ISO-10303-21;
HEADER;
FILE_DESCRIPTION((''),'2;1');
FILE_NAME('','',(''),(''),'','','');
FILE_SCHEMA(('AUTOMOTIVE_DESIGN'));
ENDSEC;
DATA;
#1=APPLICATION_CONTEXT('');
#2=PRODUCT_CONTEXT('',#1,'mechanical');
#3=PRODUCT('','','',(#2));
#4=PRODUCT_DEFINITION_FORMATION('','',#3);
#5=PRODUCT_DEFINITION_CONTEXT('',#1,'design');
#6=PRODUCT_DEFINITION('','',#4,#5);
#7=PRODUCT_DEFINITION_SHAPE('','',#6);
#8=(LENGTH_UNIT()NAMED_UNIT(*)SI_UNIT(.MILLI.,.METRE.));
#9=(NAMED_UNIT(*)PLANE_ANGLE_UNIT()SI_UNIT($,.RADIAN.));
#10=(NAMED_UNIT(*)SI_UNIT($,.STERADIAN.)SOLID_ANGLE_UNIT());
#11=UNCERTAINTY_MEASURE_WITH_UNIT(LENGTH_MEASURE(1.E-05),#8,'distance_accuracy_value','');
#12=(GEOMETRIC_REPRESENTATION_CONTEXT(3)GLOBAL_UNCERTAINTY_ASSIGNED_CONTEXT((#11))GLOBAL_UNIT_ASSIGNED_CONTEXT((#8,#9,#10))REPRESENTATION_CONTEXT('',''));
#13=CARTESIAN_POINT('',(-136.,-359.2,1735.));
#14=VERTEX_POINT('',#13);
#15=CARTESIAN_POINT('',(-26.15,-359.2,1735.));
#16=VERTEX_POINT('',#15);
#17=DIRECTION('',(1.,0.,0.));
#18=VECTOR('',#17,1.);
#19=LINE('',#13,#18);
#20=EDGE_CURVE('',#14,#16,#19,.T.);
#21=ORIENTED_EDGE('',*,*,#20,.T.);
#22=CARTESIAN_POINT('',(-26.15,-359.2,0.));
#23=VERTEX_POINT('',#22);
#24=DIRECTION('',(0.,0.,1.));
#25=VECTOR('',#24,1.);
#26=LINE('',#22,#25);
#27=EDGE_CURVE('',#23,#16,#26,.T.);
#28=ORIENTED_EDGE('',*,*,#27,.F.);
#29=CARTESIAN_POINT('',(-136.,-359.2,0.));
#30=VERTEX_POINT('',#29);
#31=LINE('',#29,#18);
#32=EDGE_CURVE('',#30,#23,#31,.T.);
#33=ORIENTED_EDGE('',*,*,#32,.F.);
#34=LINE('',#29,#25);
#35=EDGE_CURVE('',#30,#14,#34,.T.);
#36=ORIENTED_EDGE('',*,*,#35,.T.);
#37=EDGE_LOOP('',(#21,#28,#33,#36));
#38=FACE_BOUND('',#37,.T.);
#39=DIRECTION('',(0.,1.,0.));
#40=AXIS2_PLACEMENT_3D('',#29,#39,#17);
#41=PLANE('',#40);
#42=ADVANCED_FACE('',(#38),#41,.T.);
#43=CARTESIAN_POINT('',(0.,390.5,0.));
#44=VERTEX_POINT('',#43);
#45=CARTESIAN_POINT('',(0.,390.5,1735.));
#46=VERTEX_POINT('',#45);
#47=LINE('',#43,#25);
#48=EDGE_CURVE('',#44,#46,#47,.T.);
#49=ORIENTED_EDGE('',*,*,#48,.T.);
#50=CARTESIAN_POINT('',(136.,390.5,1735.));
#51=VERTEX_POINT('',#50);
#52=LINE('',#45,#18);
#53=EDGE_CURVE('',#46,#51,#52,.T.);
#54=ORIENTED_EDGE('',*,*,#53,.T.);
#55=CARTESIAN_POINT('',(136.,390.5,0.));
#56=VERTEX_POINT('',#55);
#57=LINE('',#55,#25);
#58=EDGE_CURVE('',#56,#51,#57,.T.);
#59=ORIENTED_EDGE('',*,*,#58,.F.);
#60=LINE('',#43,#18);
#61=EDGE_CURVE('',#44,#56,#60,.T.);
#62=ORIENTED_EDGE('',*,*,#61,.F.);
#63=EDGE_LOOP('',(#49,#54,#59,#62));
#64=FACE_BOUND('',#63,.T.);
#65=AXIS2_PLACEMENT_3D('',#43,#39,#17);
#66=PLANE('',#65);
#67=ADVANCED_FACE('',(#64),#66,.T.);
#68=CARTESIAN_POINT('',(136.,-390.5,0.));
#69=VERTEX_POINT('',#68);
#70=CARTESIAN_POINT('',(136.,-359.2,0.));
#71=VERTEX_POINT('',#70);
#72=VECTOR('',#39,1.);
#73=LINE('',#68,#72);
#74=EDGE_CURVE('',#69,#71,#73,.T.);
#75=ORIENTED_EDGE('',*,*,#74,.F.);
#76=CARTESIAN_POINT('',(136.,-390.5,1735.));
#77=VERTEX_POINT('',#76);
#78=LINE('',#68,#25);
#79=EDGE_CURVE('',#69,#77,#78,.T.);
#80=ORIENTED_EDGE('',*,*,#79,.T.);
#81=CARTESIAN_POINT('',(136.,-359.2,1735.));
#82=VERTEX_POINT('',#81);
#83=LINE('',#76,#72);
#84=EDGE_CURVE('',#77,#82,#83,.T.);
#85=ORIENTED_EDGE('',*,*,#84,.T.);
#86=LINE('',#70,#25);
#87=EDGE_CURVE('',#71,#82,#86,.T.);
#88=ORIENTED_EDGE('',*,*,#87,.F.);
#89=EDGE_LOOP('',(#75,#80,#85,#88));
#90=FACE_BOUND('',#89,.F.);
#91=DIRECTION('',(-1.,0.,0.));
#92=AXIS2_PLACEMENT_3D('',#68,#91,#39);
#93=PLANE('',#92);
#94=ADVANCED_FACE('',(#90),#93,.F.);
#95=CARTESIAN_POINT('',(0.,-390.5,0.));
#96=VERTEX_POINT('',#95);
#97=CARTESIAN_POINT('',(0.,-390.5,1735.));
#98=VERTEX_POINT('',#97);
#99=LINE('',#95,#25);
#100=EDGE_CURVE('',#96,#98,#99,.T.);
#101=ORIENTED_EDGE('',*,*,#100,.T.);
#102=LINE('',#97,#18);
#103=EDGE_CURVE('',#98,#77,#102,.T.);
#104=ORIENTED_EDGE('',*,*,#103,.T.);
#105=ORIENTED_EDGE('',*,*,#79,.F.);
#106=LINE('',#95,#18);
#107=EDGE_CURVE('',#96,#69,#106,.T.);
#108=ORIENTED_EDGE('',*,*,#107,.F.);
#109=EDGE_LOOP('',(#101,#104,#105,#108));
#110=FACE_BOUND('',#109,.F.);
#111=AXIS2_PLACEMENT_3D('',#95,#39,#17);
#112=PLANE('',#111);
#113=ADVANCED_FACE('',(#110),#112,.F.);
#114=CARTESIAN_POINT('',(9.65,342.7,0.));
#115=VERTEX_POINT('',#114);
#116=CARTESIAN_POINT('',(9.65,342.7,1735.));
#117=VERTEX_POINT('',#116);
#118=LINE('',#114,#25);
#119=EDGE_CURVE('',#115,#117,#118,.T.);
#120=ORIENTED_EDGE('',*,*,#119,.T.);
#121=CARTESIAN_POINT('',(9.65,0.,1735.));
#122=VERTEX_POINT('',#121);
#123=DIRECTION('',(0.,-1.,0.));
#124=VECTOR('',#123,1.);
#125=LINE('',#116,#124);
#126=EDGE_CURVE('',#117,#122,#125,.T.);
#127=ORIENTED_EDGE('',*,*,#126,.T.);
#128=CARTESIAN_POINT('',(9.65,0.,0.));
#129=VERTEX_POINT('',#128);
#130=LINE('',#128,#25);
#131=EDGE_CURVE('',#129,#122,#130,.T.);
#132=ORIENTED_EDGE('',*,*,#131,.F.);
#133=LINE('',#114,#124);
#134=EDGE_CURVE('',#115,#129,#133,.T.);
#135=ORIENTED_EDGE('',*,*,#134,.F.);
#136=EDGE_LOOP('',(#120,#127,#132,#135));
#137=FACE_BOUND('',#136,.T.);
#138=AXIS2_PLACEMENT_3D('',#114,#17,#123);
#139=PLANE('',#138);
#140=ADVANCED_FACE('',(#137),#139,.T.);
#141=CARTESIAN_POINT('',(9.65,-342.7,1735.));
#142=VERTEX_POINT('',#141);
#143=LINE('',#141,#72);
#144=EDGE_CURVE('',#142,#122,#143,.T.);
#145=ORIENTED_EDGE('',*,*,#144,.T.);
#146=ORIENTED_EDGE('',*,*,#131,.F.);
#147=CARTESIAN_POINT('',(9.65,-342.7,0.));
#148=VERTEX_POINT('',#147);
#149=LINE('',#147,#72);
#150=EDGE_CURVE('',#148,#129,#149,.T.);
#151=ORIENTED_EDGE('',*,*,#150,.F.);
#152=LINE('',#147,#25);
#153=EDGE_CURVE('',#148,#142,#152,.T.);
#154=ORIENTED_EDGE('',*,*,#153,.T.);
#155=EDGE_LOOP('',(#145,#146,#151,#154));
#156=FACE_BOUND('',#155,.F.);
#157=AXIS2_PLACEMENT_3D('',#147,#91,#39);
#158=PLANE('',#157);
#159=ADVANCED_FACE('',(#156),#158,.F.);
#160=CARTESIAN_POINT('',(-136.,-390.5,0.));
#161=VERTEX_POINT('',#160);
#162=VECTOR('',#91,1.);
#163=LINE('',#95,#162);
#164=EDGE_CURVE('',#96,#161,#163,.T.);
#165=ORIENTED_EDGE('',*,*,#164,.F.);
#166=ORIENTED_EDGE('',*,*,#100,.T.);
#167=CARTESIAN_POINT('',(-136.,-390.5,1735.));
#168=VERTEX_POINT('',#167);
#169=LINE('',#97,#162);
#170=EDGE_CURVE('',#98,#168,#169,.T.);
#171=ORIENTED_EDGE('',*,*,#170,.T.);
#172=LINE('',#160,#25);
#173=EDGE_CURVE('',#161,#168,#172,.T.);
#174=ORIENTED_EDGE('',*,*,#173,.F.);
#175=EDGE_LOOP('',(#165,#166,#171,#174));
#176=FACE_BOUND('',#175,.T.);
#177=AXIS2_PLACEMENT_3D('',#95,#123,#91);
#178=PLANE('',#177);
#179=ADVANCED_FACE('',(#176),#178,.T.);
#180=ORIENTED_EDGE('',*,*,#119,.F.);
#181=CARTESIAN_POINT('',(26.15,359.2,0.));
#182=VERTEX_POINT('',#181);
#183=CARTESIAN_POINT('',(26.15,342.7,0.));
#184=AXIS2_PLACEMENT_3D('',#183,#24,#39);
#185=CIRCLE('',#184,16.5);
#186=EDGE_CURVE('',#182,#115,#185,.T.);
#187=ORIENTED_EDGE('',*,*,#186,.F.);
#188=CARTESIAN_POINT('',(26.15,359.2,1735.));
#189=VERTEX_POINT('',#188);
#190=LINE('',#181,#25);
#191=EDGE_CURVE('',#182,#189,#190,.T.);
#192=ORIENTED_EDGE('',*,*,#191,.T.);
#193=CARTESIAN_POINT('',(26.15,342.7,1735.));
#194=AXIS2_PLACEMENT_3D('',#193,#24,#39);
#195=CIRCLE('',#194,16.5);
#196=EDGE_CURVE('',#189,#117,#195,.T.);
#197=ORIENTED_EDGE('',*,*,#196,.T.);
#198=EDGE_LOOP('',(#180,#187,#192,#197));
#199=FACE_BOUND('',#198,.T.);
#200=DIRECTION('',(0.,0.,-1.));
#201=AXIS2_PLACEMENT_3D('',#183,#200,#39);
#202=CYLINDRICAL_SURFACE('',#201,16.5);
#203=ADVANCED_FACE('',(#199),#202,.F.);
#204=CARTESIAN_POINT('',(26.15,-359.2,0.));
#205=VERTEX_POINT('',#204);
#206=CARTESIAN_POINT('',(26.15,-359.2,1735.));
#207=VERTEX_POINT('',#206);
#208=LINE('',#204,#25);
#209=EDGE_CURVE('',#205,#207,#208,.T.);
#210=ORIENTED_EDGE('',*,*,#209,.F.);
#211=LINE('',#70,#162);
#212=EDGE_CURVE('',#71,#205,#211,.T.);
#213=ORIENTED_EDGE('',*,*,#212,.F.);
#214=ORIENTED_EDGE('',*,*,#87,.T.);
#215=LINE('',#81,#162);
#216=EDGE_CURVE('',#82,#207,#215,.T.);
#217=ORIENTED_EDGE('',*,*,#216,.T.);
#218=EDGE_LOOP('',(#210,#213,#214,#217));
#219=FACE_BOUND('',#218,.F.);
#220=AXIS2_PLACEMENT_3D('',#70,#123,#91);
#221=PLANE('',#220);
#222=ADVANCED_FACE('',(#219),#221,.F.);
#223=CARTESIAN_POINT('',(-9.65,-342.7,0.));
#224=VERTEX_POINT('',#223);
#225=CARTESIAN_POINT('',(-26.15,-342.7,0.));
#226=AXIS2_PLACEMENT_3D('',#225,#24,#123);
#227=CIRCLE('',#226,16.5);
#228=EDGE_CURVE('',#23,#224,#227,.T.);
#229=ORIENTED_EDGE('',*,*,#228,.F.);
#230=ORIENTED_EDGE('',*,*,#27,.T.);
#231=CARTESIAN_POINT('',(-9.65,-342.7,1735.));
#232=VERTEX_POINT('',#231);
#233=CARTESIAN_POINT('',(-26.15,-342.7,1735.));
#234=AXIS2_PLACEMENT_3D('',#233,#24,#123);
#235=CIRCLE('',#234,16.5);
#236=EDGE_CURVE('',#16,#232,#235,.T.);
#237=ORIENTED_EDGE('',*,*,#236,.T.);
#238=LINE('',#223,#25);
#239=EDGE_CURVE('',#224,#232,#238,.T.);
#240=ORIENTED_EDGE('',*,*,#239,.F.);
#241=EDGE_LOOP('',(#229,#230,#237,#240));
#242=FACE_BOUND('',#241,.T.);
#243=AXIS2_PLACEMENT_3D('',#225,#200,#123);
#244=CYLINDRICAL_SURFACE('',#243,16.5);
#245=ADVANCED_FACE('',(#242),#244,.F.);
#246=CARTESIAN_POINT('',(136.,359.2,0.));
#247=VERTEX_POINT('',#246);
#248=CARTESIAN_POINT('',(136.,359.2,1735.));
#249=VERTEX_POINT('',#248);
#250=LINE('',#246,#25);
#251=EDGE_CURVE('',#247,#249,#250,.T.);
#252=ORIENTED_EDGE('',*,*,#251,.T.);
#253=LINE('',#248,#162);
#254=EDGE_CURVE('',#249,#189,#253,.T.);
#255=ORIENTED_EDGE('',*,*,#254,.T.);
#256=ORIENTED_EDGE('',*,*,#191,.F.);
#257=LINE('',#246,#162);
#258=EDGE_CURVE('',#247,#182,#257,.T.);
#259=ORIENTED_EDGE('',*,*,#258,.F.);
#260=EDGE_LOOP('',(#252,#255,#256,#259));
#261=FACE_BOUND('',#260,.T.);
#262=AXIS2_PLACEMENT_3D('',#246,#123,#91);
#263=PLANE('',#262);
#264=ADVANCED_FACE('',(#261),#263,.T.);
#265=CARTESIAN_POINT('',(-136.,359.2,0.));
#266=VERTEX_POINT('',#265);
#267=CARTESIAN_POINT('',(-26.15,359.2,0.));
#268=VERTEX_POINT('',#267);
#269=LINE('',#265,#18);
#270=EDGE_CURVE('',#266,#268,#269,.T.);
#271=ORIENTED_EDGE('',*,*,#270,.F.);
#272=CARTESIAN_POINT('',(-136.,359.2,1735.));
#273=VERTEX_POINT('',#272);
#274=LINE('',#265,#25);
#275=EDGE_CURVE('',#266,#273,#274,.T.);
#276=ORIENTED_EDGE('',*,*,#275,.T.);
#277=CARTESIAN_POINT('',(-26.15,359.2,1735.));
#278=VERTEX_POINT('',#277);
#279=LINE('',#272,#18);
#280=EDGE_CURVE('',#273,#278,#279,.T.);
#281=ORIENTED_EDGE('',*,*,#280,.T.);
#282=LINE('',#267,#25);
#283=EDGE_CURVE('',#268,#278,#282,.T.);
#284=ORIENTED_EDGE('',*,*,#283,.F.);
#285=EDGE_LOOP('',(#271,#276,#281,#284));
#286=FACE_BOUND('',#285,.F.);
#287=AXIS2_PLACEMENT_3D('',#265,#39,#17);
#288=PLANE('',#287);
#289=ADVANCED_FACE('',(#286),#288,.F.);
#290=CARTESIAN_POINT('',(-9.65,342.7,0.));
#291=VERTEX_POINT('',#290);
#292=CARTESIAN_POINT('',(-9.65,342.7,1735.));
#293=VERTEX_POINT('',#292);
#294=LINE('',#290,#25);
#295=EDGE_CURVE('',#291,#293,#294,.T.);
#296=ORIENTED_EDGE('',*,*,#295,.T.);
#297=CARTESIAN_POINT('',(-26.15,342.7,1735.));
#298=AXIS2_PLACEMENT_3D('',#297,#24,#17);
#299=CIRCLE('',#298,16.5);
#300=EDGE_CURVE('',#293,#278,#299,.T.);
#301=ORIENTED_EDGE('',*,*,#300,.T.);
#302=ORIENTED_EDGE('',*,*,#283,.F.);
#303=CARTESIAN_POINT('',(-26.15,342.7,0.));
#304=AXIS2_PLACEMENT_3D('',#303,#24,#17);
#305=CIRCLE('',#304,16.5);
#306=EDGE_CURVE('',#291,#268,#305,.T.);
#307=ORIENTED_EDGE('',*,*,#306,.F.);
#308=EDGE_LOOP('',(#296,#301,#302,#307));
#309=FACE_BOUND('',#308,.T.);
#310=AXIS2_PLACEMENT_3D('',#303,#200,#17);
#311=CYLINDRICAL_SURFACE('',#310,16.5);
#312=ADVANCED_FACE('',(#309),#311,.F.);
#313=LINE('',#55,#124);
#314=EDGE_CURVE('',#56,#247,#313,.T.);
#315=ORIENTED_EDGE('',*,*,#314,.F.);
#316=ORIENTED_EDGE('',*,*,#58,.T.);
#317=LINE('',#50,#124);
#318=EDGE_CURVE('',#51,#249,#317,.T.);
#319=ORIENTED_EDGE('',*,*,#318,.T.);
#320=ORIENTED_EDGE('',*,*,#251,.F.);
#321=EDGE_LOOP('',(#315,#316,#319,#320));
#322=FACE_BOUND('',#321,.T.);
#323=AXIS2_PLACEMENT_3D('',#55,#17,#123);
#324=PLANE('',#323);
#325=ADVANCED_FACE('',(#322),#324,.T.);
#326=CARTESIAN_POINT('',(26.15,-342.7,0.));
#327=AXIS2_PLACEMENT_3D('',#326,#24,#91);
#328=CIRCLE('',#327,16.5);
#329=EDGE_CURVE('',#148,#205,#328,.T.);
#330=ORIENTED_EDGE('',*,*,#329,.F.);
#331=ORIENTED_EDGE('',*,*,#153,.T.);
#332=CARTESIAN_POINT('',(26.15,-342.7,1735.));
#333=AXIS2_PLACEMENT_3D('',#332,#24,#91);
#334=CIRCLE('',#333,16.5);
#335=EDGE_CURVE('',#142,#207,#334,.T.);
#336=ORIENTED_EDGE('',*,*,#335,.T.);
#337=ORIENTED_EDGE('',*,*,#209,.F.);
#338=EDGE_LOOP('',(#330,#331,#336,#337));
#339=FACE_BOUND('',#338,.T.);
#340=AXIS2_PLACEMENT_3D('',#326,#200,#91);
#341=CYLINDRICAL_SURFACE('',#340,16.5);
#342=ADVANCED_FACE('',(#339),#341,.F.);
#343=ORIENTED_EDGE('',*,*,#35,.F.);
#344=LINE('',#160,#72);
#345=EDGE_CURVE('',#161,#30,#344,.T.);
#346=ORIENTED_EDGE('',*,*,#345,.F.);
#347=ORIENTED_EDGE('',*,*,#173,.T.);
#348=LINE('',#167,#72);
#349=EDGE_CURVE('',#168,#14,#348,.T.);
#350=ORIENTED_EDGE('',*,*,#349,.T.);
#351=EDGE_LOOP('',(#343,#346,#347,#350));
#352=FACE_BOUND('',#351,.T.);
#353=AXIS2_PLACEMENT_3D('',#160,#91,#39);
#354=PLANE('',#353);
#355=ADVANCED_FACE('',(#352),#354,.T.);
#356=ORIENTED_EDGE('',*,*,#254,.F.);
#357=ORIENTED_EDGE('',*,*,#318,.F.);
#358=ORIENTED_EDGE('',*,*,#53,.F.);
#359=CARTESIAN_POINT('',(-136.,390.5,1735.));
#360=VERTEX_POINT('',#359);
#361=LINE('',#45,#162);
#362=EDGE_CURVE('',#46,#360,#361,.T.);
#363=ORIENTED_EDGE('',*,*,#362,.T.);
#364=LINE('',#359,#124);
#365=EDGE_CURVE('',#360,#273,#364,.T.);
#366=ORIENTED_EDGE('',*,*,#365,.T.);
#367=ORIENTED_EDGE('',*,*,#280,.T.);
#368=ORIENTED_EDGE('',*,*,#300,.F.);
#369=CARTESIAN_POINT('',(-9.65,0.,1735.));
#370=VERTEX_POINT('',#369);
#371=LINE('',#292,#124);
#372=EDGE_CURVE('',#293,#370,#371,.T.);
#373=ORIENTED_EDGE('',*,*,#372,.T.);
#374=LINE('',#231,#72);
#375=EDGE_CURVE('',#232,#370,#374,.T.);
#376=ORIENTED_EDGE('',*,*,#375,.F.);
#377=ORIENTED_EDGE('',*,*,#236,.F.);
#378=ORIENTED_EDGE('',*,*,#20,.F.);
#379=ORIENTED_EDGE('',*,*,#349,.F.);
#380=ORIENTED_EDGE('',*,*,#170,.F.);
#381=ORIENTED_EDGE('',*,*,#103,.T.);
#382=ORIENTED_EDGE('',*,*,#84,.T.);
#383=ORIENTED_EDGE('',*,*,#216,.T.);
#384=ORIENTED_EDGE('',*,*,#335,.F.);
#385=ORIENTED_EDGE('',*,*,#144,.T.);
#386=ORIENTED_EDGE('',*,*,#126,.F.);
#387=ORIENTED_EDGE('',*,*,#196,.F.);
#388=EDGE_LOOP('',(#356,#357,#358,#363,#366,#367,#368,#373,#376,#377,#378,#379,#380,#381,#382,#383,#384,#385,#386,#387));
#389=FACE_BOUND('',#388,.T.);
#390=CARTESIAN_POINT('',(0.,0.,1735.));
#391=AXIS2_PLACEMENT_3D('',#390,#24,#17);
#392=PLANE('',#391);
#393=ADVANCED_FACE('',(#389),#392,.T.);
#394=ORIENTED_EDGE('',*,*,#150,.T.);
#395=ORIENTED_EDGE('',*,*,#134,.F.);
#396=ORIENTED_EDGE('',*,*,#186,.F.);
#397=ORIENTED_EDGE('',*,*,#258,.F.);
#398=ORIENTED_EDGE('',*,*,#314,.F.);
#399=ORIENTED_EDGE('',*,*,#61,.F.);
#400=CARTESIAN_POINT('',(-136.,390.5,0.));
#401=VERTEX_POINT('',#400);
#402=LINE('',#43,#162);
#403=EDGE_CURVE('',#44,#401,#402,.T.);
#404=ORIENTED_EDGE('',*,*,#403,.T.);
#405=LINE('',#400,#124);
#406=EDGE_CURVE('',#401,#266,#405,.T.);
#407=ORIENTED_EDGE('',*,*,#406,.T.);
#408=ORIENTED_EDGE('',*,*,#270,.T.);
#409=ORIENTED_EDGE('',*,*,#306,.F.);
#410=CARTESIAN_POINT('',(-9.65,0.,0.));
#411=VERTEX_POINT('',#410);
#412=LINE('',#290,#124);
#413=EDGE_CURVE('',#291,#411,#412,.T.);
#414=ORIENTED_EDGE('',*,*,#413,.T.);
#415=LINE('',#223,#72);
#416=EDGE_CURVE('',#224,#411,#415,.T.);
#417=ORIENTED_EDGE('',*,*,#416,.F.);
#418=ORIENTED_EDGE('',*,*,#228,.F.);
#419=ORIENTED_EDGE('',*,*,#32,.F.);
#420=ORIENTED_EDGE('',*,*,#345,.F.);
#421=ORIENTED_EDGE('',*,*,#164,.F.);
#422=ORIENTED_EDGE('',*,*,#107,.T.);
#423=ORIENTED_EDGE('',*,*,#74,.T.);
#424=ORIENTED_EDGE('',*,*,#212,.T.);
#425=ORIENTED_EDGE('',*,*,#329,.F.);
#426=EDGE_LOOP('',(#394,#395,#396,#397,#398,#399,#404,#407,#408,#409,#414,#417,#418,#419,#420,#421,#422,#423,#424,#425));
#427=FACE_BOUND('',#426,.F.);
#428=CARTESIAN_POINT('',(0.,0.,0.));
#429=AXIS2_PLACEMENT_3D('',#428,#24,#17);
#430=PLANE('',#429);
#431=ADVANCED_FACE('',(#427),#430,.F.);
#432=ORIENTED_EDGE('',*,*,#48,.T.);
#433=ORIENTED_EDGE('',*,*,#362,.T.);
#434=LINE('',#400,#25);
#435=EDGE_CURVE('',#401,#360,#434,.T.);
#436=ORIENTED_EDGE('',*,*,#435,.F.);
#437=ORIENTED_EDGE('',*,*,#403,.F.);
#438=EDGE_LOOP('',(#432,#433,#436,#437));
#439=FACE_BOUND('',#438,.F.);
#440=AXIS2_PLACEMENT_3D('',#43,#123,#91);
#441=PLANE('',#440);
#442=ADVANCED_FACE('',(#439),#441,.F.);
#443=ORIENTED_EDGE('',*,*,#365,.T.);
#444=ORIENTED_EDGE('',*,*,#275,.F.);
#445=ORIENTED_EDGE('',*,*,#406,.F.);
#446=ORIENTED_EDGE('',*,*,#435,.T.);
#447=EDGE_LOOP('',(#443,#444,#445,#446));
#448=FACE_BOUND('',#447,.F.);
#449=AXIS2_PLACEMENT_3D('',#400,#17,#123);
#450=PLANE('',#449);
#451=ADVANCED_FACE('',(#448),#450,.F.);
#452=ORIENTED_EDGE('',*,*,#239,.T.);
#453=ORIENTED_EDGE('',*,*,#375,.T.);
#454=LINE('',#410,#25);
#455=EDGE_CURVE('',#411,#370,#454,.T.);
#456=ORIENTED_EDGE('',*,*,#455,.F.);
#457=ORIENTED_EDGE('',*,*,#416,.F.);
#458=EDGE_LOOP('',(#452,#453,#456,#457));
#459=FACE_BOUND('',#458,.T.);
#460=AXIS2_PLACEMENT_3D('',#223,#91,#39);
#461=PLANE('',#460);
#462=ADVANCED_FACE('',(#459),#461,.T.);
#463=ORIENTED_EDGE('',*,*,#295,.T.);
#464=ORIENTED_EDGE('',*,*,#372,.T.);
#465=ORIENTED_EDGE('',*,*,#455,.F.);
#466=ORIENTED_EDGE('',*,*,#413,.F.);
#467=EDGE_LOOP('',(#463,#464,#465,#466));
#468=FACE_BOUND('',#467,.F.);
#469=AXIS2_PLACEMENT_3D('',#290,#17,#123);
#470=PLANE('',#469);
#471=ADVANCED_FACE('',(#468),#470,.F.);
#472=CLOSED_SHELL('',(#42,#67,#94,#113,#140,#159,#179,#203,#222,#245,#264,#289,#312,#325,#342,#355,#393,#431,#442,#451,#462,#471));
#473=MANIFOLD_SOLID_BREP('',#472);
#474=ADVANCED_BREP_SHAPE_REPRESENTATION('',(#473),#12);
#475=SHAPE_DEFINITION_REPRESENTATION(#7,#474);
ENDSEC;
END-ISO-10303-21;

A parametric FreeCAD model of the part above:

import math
import FreeCAD as App
import Part
import Sketcher
from FreeCAD import Vector

doc = App.newDocument("Part")
body = doc.addObject("PartDesign::Body", "Body")

# Sketch on XY plane
sketch1 = doc.addObject("Sketcher::SketchObject", "Sketch")
body.addObject(sketch1)
sketch1.AttachmentSupport = (doc.XY_Plane, [""])
sketch1.MapMode = "FlatFace"
sketch1.addGeometry([
    Part.LineSegment(Vector(-136, -359, 0), Vector(-136, -390, 0)),  # 0
    Part.LineSegment(Vector(-136, -390, 0), Vector(136, -390, 0)),  # 1
    Part.LineSegment(Vector(136, -390, 0), Vector(136, -359, 0)),  # 2
    Part.LineSegment(Vector(136, -359, 0), Vector(26, -359, 0)),  # 3
    Part.ArcOfCircle(Part.Circle(Vector(26, -343, 0), Vector(0, 0, 1), 16), math.radians(180), math.radians(270)),  # 4
    Part.LineSegment(Vector(10, -343, 0), Vector(10, 343, 0)),  # 5
    Part.ArcOfCircle(Part.Circle(Vector(26, 343, 0), Vector(0, 0, 1), 16), math.radians(90), math.radians(180)),  # 6
    Part.LineSegment(Vector(26, 359, 0), Vector(136, 359, 0)),  # 7
    Part.LineSegment(Vector(136, 359, 0), Vector(136, 390, 0)),  # 8
    Part.LineSegment(Vector(136, 390, 0), Vector(-136, 390, 0)),  # 9
    Part.LineSegment(Vector(-136, 390, 0), Vector(-136, 359, 0)),  # 10
    Part.LineSegment(Vector(-136, 359, 0), Vector(-26, 359, 0)),  # 11
    Part.ArcOfCircle(Part.Circle(Vector(-26, 343, 0), Vector(0, 0, 1), 16), math.radians(0), math.radians(90)),  # 12
    Part.LineSegment(Vector(-10, 343, 0), Vector(-10, -343, 0)),  # 13
    Part.ArcOfCircle(Part.Circle(Vector(-26, -343, 0), Vector(0, 0, 1), 16), math.radians(-90), math.radians(0)),  # 14
    Part.LineSegment(Vector(-26, -359, 0), Vector(-136, -359, 0)),  # 15
], False)
sketch1.addConstraint([
    Sketcher.Constraint("Coincident", 0, 2, 1, 1),
    Sketcher.Constraint("Coincident", 1, 2, 2, 1),
    Sketcher.Constraint("Coincident", 2, 2, 3, 1),
    Sketcher.Constraint("Tangent", 3, 2, 4, 2),
    Sketcher.Constraint("Tangent", 4, 1, 5, 1),
    Sketcher.Constraint("Tangent", 5, 2, 6, 2),
    Sketcher.Constraint("Tangent", 6, 1, 7, 1),
    Sketcher.Constraint("Coincident", 7, 2, 8, 1),
    Sketcher.Constraint("Coincident", 8, 2, 9, 1),
    Sketcher.Constraint("Coincident", 9, 2, 10, 1),
    Sketcher.Constraint("Coincident", 10, 2, 11, 1),
    Sketcher.Constraint("Tangent", 11, 2, 12, 2),
    Sketcher.Constraint("Tangent", 12, 1, 13, 1),
    Sketcher.Constraint("Tangent", 13, 2, 14, 2),
    Sketcher.Constraint("Tangent", 14, 1, 15, 1),
    Sketcher.Constraint("Coincident", 15, 2, 0, 1),
    Sketcher.Constraint("Vertical", 0),
    Sketcher.Constraint("Horizontal", 1),
    Sketcher.Constraint("Vertical", 2),
    Sketcher.Constraint("Horizontal", 3),
    Sketcher.Constraint("Vertical", 5),
    Sketcher.Constraint("Horizontal", 7),
    Sketcher.Constraint("Vertical", 8),
    Sketcher.Constraint("Horizontal", 9),
    Sketcher.Constraint("Vertical", 10),
    Sketcher.Constraint("Horizontal", 11),
    Sketcher.Constraint("Vertical", 13),
    Sketcher.Constraint("Horizontal", 15),
    Sketcher.Constraint("Equal", 4, 6),
    Sketcher.Constraint("Equal", 6, 12),
    Sketcher.Constraint("Equal", 12, 14),
    Sketcher.Constraint("Symmetric", 4, 3, 12, 3, -1, 1),
    Sketcher.Constraint("Symmetric", 0, 2, 8, 2, -1, 1),
    Sketcher.Constraint("Symmetric", 7, 2, 10, 2, -2),
    Sketcher.Constraint("Symmetric", 2, 2, 15, 2, -2),
    Sketcher.Constraint("Radius", 4, 16.5),
    Sketcher.Constraint("DistanceY", 0, 2, 0, 1, 31.3),
    Sketcher.Constraint("DistanceX", 0, 2, -1, 1, 136.0),
    Sketcher.Constraint("DistanceY", 0, 2, -1, 1, 390.5),
    Sketcher.Constraint("DistanceX", -1, 1, 4, 1, 9.65),
])
pad1 = doc.addObject("PartDesign::Pad", "Pad")
body.addObject(pad1)
pad1.Profile = sketch1
pad1.Length = 1735

doc.recompute()
